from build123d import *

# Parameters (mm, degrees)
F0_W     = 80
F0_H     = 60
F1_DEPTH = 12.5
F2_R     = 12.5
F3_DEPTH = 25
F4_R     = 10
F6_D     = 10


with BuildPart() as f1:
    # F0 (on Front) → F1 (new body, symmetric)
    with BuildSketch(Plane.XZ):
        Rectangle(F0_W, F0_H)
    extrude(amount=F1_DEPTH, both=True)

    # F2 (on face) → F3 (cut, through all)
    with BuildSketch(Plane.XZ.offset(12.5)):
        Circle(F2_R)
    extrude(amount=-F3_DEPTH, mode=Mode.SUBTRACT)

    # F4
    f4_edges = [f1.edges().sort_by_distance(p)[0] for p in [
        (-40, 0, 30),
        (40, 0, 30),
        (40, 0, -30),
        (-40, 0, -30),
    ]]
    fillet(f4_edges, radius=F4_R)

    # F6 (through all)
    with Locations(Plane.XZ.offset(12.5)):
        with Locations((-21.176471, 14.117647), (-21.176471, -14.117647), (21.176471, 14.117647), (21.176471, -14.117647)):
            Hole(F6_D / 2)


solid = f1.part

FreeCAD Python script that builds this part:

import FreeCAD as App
import Part
import Sketcher

V = App.Vector


def edges_at(feature, points):
    """Names of the edges that pass closest to the given points."""
    edges = feature.Shape.Edges
    near = lambda p: min(range(len(edges)), key=lambda i: edges[i].distToShape(Part.Vertex(*p))[0])
    return sorted({f"Edge{near(p) + 1}" for p in points})


def add_polygon(sketch, points):
    """Adds a closed chain of lines whose ends are joined by coincident constraints."""
    first, n = sketch.GeometryCount, len(points)
    for a, b in zip(points, points[1:] + points[:1]):
        sketch.addGeometry(Part.LineSegment(App.Vector(*a, 0), App.Vector(*b, 0)), False)
    for i in range(n):
        sketch.addConstraint(Sketcher.Constraint("Coincident", first + i, 2, first + (i + 1) % n, 1))

doc = App.newDocument("Part")
body = doc.addObject("PartDesign::Body", "Body")

# Sketch on XZ plane
sketch1 = body.newObject("Sketcher::SketchObject", "Sketch")
sketch1.AttachmentSupport = (doc.getObject("XZ_Plane"), [""])
sketch1.MapMode = "FlatFace"
add_polygon(sketch1, [(-40, 30), (-40, -30), (40, -30), (40, 30)])  # lines 0-3
sketch1.addConstraint(Sketcher.Constraint("Vertical", 0))
sketch1.addConstraint(Sketcher.Constraint("Horizontal", 1))
sketch1.addConstraint(Sketcher.Constraint("Vertical", 2))
sketch1.addConstraint(Sketcher.Constraint("Horizontal", 3))
sketch1.addConstraint(Sketcher.Constraint("Symmetric", 0, 2, 2, 2, -1, 1))
sketch1.addConstraint(Sketcher.Constraint("DistanceX", 1, 1, 1, 2, 80.0))
sketch1.addConstraint(Sketcher.Constraint("DistanceY", 0, 2, 0, 1, 60.0))
pad1 = body.newObject("PartDesign::Pad", "Pad")
pad1.Profile = sketch1
pad1.Length = 25
pad1.Midplane = True

# Sketch on XZ plane
sketch2 = body.newObject("Sketcher::SketchObject", "Sketch001")
sketch2.AttachmentSupport = (doc.getObject("XZ_Plane"), [""])
sketch2.MapMode = "FlatFace"
sketch2.AttachmentOffset = App.Placement(V(0, 0, 12.5), App.Rotation())
sketch2.addGeometry(Part.Circle(V(0, 0, 0), V(0, 0, 1), 12.5), False)
sketch2.addConstraint(Sketcher.Constraint("Coincident", 0, 3, -1, 1))
sketch2.addConstraint(Sketcher.Constraint("Diameter", 0, 25.0))
pocket1 = body.newObject("PartDesign::Pocket", "Pocket")
pocket1.Profile = sketch2
pocket1.Type = "ThroughAll"
doc.recompute()

fillet = body.newObject("PartDesign::Fillet", "Fillet")
fillet.Base = (pocket1, edges_at(pocket1, [
    (-40, 0, 30),
    (40, 0, 30),
    (40, 0, -30),
    (-40, 0, -30),
]))
fillet.Radius = 10

# Sketch on XZ plane
sketch3 = body.newObject("Sketcher::SketchObject", "Sketch002")
sketch3.AttachmentSupport = (doc.getObject("XZ_Plane"), [""])
sketch3.MapMode = "FlatFace"
sketch3.AttachmentOffset = App.Placement(V(0, 0, 12.5), App.Rotation())
sketch3.addGeometry(Part.Circle(V(-21.176471, 14.117647, 0), V(0, 0, 1), 5), False)
sketch3.addGeometry(Part.Circle(V(-21.176471, -14.117647, 0), V(0, 0, 1), 5), False)
sketch3.addGeometry(Part.Circle(V(21.176471, 14.117647, 0), V(0, 0, 1), 5), False)
sketch3.addGeometry(Part.Circle(V(21.176471, -14.117647, 0), V(0, 0, 1), 5), False)
sketch3.addConstraint(Sketcher.Constraint("Equal", 0, 1))
sketch3.addConstraint(Sketcher.Constraint("Equal", 1, 2))
sketch3.addConstraint(Sketcher.Constraint("Equal", 2, 3))
sketch3.addConstraint(Sketcher.Constraint("Symmetric", 1, 3, 2, 3, -1, 1))
sketch3.addConstraint(Sketcher.Constraint("Symmetric", 0, 3, 3, 3, -1, 1))
sketch3.addConstraint(Sketcher.Constraint("Symmetric", 0, 3, 2, 3, -2))
sketch3.addConstraint(Sketcher.Constraint("Diameter", 0, 10.0))
sketch3.addConstraint(Sketcher.Constraint("DistanceX", 0, 3, -1, 1, 21.176471))
sketch3.addConstraint(Sketcher.Constraint("DistanceY", -1, 1, 0, 3, 14.117647))
doc.recompute()
hole = body.newObject("PartDesign::Hole", "Hole")
hole.Profile = sketch3
hole.ThreadType = "None"
hole.Diameter = 10
hole.DepthType = "ThroughAll"

doc.recompute()
